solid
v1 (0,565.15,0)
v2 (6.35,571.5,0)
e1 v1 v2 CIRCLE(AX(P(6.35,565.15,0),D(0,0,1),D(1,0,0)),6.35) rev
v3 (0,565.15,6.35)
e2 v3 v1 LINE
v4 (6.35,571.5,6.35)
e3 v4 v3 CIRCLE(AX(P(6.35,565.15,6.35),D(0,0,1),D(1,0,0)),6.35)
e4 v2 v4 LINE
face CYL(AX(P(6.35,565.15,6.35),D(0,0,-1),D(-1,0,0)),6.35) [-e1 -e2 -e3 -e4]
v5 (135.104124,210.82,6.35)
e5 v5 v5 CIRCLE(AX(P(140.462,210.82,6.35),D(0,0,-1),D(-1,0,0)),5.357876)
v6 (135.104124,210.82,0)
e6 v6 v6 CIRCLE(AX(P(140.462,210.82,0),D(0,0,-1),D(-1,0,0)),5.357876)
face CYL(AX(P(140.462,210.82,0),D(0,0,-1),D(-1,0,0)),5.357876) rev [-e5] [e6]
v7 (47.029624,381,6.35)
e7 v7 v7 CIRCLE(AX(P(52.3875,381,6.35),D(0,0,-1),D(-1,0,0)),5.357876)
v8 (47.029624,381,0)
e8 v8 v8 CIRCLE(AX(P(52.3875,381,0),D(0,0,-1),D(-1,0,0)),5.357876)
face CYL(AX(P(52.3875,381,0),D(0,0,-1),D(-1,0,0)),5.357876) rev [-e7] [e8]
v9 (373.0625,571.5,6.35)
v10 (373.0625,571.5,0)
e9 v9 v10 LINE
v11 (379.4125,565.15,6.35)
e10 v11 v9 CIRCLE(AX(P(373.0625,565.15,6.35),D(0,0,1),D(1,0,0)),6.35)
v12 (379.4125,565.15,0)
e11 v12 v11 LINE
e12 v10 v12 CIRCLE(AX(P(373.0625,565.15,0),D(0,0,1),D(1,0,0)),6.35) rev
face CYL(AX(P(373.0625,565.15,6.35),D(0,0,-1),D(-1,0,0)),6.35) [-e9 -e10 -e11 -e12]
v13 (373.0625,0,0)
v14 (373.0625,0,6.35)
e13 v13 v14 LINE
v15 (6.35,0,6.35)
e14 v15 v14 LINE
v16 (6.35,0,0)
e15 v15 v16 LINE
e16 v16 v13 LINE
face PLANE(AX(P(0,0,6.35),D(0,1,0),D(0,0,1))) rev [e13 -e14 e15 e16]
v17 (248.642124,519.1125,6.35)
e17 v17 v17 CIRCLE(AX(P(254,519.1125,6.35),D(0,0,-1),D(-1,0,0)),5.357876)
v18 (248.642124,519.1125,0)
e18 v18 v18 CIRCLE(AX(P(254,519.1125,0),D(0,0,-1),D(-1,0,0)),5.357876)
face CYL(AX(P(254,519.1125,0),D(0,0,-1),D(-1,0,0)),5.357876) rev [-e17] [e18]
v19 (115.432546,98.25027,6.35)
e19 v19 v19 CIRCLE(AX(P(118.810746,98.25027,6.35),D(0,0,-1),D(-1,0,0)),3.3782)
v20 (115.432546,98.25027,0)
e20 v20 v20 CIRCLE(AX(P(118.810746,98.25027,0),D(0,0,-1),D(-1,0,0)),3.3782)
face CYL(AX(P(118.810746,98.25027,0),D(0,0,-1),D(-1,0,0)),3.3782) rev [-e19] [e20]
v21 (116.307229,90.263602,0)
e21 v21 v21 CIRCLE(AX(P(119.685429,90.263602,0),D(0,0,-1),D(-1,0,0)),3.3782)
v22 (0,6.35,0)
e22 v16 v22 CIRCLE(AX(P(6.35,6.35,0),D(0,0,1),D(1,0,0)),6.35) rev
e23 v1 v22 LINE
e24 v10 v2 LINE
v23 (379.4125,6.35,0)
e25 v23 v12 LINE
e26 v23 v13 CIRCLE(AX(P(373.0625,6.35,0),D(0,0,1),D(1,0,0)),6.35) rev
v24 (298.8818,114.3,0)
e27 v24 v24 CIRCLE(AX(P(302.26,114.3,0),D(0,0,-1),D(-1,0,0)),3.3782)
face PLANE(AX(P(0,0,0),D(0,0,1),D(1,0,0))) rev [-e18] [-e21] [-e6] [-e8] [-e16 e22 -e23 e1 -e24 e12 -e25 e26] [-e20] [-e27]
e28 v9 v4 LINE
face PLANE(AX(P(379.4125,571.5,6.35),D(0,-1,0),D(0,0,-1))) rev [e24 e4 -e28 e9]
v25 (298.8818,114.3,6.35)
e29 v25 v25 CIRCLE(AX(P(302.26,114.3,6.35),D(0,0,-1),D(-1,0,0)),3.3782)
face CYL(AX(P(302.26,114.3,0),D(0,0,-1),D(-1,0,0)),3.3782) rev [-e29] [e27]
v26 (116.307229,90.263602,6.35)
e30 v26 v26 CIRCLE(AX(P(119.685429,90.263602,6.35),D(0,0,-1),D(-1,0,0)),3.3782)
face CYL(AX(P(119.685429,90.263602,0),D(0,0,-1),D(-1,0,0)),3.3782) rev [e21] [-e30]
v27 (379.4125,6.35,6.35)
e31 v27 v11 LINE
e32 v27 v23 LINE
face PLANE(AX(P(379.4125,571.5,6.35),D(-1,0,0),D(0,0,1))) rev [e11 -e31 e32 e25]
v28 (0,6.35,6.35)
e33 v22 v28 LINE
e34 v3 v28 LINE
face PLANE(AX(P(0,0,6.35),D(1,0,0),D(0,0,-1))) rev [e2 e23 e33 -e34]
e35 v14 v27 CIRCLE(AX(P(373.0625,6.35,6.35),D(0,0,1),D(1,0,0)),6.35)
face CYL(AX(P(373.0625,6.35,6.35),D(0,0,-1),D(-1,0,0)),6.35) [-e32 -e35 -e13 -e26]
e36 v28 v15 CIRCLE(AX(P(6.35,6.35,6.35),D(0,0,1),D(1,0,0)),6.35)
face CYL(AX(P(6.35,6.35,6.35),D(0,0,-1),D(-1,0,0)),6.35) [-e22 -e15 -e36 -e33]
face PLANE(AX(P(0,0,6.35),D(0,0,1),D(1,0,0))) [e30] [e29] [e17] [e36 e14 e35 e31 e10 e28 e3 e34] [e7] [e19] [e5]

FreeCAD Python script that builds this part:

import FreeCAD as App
import Part
import Sketcher

V = App.Vector
Q = App.Units.Quantity


def edges_at(feature, points):
    """Names of the edges that pass closest to the given points."""
    edges = feature.Shape.Edges
    near = lambda p: min(range(len(edges)), key=lambda i: edges[i].distToShape(Part.Vertex(*p))[0])
    return sorted({f"Edge{near(p) + 1}" for p in points})

doc = App.newDocument("Part")
params = doc.addObject("Spreadsheet::Sheet", "Params")
for row, (alias, value) in enumerate([
    ("sketch1_width", "2 in"),
    ("sketch1_height", "22.5 in"),
    ("sketch1_width2", "14.9375 in"),
    ("sketch1_width3", "1.9375 in"),
    ("sketch1_height2", "15.875 in"),
    ("pad1_length", "0.25 in"),
    ("fillet_radius", "0.125 in"),
    ("fillet2_radius", "1.75 in"),
    ("sketch2_diameter", "0.266 in"),
    ("hole_diameter", "0.266 in"),
    ("sketch3_width", "3.9375 in"),
    ("sketch3_height", "6.125 in"),
    ("hole2_diameter", "10.715752 mm"),
    ("fillet3_radius", "0.25 in"),
], start=1):
    params.set(f"A{row}", alias)
    params.set(f"B{row}", "=" + value)
    params.setAlias(f"B{row}", alias)

body = doc.addObject("PartDesign::Body", "Body")

sketch1 = doc.addObject("Sketcher::SketchObject", "Sketch")
body.addObject(sketch1)
sketch1.AttachmentSupport = (doc.XY_Plane, [""])
sketch1.MapMode = "FlatFace"
sketch1.addGeometry(Part.LineSegment(V(0, 572, 0), V(0, 0, 0)), False)
sketch1.addGeometry(Part.LineSegment(V(0, 0, 0), V(379, 0, 0)), False)
sketch1.addGeometry(Part.LineSegment(V(379, 0, 0), V(379, 403, 0)), False)
sketch1.addGeometry(Part.LineSegment(V(379, 403, 0), V(429, 403, 0)), False)
sketch1.addGeometry(Part.LineSegment(V(429, 403, 0), V(429, 356, 0)), False)
sketch1.addGeometry(Part.LineSegment(V(429, 356, 0), V(479, 356, 0)), False)
sketch1.addGeometry(Part.LineSegment(V(479, 356, 0), V(479, 467, 0)), False)
sketch1.addGeometry(Part.LineSegment(V(479, 467, 0), V(379, 467, 0)), False)
sketch1.addGeometry(Part.LineSegment(V(379, 467, 0), V(379, 572, 0)), False)
sketch1.addGeometry(Part.LineSegment(V(379, 572, 0), V(0, 572, 0)), False)
sketch1.addConstraint(Sketcher.Constraint("Coincident", 0, 2, 1, 1))
sketch1.addConstraint(Sketcher.Constraint("Coincident", 1, 2, 2, 1))
sketch1.addConstraint(Sketcher.Constraint("Coincident", 2, 2, 3, 1))
sketch1.addConstraint(Sketcher.Constraint("Coincident", 3, 2, 4, 1))
sketch1.addConstraint(Sketcher.Constraint("Coincident", 4, 2, 5, 1))
sketch1.addConstraint(Sketcher.Constraint("Coincident", 5, 2, 6, 1))
sketch1.addConstraint(Sketcher.Constraint("Coincident", 6, 2, 7, 1))
sketch1.addConstraint(Sketcher.Constraint("Coincident", 7, 2, 8, 1))
sketch1.addConstraint(Sketcher.Constraint("Coincident", 8, 2, 9, 1))
sketch1.addConstraint(Sketcher.Constraint("Coincident", 9, 2, 0, 1))
sketch1.addConstraint(Sketcher.Constraint("Vertical", 0))
sketch1.addConstraint(Sketcher.Constraint("Horizontal", 1))
sketch1.addConstraint(Sketcher.Constraint("Vertical", 2))
sketch1.addConstraint(Sketcher.Constraint("Horizontal", 3))
sketch1.addConstraint(Sketcher.Constraint("Vertical", 4))
sketch1.addConstraint(Sketcher.Constraint("Horizontal", 5))
sketch1.addConstraint(Sketcher.Constraint("Vertical", 6))
sketch1.addConstraint(Sketcher.Constraint("Horizontal", 7))
sketch1.addConstraint(Sketcher.Constraint("Vertical", 8))
sketch1.addConstraint(Sketcher.Constraint("Horizontal", 9))
sketch1.addConstraint(Sketcher.Constraint("Coincident", 0, 2, -1, 1))
sketch1.addConstraint(Sketcher.Constraint("Vertical", 2, 2, 7, 2))
sketch1.addConstraint(Sketcher.Constraint("DistanceX", 5, 1, 5, 2, Q("2 in")))
sketch1.addConstraint(Sketcher.Constraint("DistanceY", 0, 2, 0, 1, Q("22.5 in")))
sketch1.addConstraint(Sketcher.Constraint("DistanceY", -1, 1, 4, 2, Q("14 in")))
sketch1.addConstraint(Sketcher.Constraint("DistanceY", 3, 2, 6, 2, Q("2.5 in")))
sketch1.addConstraint(Sketcher.Constraint("DistanceX", 1, 1, 1, 2, Q("14.9375 in")))
sketch1.addConstraint(Sketcher.Constraint("DistanceX", 3, 1, 3, 2, Q("1.9375 in")))
sketch1.addConstraint(Sketcher.Constraint("DistanceY", 2, 1, 2, 2, Q("15.875 in")))
sketch1.setExpression("Constraints[22]", "Params.sketch1_width")
sketch1.setExpression("Constraints[23]", "Params.sketch1_height")
sketch1.setExpression("Constraints[26]", "Params.sketch1_width2")
sketch1.setExpression("Constraints[27]", "Params.sketch1_width3")
sketch1.setExpression("Constraints[28]", "Params.sketch1_height2")
pad1 = doc.addObject("PartDesign::Pad", "Pad")
body.addObject(pad1)
pad1.Profile = sketch1
pad1.setExpression("Length", "Params.pad1_length")
doc.recompute()

fillet = doc.addObject("PartDesign::Fillet", "Fillet")
body.addObject(fillet)
fillet.Base = (pad1, edges_at(pad1, [(428.625, 403.225, 3.175), (379.413, 403.225, 3.175)]))
fillet.setExpression("Radius", "Params.fillet_radius")
doc.recompute()

fillet2 = doc.addObject("PartDesign::Fillet", "Fillet001")
body.addObject(fillet2)
fillet2.Base = (fillet, edges_at(fillet, [(379.413, 466.725, 3.175), (479.425, 466.725, 3.175)]))
fillet2.setExpression("Radius", "Params.fillet2_radius")

sketch2 = doc.addObject("Sketcher::SketchObject", "Sketch001")
body.addObject(sketch2)
sketch2.AttachmentSupport = (doc.XY_Plane, [""])
sketch2.MapMode = "FlatFace"
sketch2.addGeometry(Part.Circle(V(118.8, 98.3, 0), V(0, 0, 1), 3.4), False)
sketch2.addGeometry(Part.Circle(V(302.3, 114.3, 0), V(0, 0, 1), 3.4), False)
sketch2.addGeometry(Part.Circle(V(119.7, 90.3, 0), V(0, 0, 1), 3.4), False)
sketch2.addConstraint(Sketcher.Constraint("Equal", 0, 1))
sketch2.addConstraint(Sketcher.Constraint("Equal", 1, 2))
sketch2.addConstraint(Sketcher.Constraint("Diameter", 0, Q("0.266 in")))
sketch2.addConstraint(Sketcher.Constraint("DistanceX", -1, 1, 1, 3, Q("11.9 in")))
sketch2.addConstraint(Sketcher.Constraint("DistanceY", -1, 1, 1, 3, Q("4.5 in")))
sketch2.addConstraint(Sketcher.Constraint("DistanceY", -1, 1, 2, 3, Q("90.263602 mm")))
sketch2.addConstraint(Sketcher.Constraint("DistanceY", -1, 1, 0, 3, Q("98.25027 mm")))
sketch2.addConstraint(Sketcher.Constraint("DistanceX", -1, 1, 2, 3, Q("119.685429 mm")))
sketch2.addConstraint(Sketcher.Constraint("DistanceX", -1, 1, 0, 3, Q("118.810746 mm")))
sketch2.setExpression("Constraints[2]", "Params.sketch2_diameter")
doc.recompute()
hole = doc.addObject("PartDesign::Hole", "Hole")
body.addObject(hole)
hole.Profile = sketch2
hole.ThreadType = "None"
hole.setExpression("Diameter", "Params.hole_diameter")
hole.DepthType = "ThroughAll"
hole.Reversed = True

sketch3 = doc.addObject("Sketcher::SketchObject", "Sketch002")
body.addObject(sketch3)
sketch3.AttachmentSupport = (doc.XY_Plane, [""])
sketch3.MapMode = "FlatFace"
sketch3.addGeometry(Part.LineSegment(V(479, 511, 0), V(479, 356, 0)), False)
sketch3.addGeometry(Part.LineSegment(V(479, 356, 0), V(379, 356, 0)), False)
sketch3.addGeometry(Part.LineSegment(V(379, 356, 0), V(379, 511, 0)), False)
sketch3.addGeometry(Part.LineSegment(V(379, 511, 0), V(479, 511, 0)), False)
sketch3.addConstraint(Sketcher.Constraint("Coincident", 0, 2, 1, 1))
sketch3.addConstraint(Sketcher.Constraint("Coincident", 1, 2, 2, 1))
sketch3.addConstraint(Sketcher.Constraint("Coincident", 2, 2, 3, 1))
sketch3.addConstraint(Sketcher.Constraint("Coincident", 3, 2, 0, 1))
sketch3.addConstraint(Sketcher.Constraint("Vertical", 0))
sketch3.addConstraint(Sketcher.Constraint("Horizontal", 1))
sketch3.addConstraint(Sketcher.Constraint("Vertical", 2))
sketch3.addConstraint(Sketcher.Constraint("Horizontal", 3))
sketch3.addConstraint(Sketcher.Constraint("DistanceY", -1, 1, 0, 2, Q("14 in")))
sketch3.addConstraint(Sketcher.Constraint("DistanceX", 1, 2, 1, 1, Q("3.9375 in")))
sketch3.addConstraint(Sketcher.Constraint("DistanceY", 0, 2, 0, 1, Q("6.125 in")))
sketch3.addConstraint(Sketcher.Constraint("DistanceX", -1, 1, 0, 2, Q("18.875 in")))
sketch3.setExpression("Constraints[9]", "Params.sketch3_width")
sketch3.setExpression("Constraints[10]", "Params.sketch3_height")
pocket1 = doc.addObject("PartDesign::Pocket", "Pocket")
body.addObject(pocket1)
pocket1.Profile = sketch3
pocket1.Type = "ThroughAll"
pocket1.Reversed = True

sketch4 = doc.addObject("Sketcher::SketchObject", "Sketch003")
body.addObject(sketch4)
sketch4.AttachmentSupport = (doc.XY_Plane, [""])
sketch4.MapMode = "FlatFace"
sketch4.addGeometry(Part.Circle(V(254, 519, 0), V(0, 0, 1), 5), False)
sketch4.addGeometry(Part.Circle(V(52, 381, 0), V(0, 0, 1), 5), False)
sketch4.addGeometry(Part.Circle(V(140, 211, 0), V(0, 0, 1), 5), False)
sketch4.addConstraint(Sketcher.Constraint("Equal", 0, 1))
sketch4.addConstraint(Sketcher.Constraint("Equal", 1, 2))
sketch4.addConstraint(Sketcher.Constraint("DistanceX", -1, 1, 0, 3, Q("10 in")))
sketch4.addConstraint(Sketcher.Constraint("DistanceY", -1, 1, 1, 3, Q("15 in")))
sketch4.addConstraint(Sketcher.Constraint("DistanceY", -1, 1, 2, 3, Q("8.3 in")))
sketch4.addConstraint(Sketcher.Constraint("DistanceX", -1, 1, 2, 3, Q("5.53 in")))
sketch4.addConstraint(Sketcher.Constraint("DistanceY", -1, 1, 0, 3, Q("20.4375 in")))
sketch4.addConstraint(Sketcher.Constraint("DistanceX", -1, 1, 1, 3, Q("2.0625 in")))
sketch4.addConstraint(Sketcher.Constraint("Diameter", 0, Q("10.715752 mm")))
doc.recompute()
hole2 = doc.addObject("PartDesign::Hole", "Hole001")
body.addObject(hole2)
hole2.Profile = sketch4
hole2.ThreadType = "None"
hole2.setExpression("Diameter", "Params.hole2_diameter")
hole2.DepthType = "ThroughAll"
hole2.Reversed = True
doc.recompute()

fillet3 = doc.addObject("PartDesign::Fillet", "Fillet002")
body.addObject(fillet3)
fillet3.Base = (hole2, edges_at(hole2, [
    (0, 0, 3.175),
    (0, 571.5, 3.175),
    (379.413, 571.5, 3.175),
    (379.413, 0, 3.175),
]))
fillet3.setExpression("Radius", "Params.fillet3_radius")

doc.recompute()
